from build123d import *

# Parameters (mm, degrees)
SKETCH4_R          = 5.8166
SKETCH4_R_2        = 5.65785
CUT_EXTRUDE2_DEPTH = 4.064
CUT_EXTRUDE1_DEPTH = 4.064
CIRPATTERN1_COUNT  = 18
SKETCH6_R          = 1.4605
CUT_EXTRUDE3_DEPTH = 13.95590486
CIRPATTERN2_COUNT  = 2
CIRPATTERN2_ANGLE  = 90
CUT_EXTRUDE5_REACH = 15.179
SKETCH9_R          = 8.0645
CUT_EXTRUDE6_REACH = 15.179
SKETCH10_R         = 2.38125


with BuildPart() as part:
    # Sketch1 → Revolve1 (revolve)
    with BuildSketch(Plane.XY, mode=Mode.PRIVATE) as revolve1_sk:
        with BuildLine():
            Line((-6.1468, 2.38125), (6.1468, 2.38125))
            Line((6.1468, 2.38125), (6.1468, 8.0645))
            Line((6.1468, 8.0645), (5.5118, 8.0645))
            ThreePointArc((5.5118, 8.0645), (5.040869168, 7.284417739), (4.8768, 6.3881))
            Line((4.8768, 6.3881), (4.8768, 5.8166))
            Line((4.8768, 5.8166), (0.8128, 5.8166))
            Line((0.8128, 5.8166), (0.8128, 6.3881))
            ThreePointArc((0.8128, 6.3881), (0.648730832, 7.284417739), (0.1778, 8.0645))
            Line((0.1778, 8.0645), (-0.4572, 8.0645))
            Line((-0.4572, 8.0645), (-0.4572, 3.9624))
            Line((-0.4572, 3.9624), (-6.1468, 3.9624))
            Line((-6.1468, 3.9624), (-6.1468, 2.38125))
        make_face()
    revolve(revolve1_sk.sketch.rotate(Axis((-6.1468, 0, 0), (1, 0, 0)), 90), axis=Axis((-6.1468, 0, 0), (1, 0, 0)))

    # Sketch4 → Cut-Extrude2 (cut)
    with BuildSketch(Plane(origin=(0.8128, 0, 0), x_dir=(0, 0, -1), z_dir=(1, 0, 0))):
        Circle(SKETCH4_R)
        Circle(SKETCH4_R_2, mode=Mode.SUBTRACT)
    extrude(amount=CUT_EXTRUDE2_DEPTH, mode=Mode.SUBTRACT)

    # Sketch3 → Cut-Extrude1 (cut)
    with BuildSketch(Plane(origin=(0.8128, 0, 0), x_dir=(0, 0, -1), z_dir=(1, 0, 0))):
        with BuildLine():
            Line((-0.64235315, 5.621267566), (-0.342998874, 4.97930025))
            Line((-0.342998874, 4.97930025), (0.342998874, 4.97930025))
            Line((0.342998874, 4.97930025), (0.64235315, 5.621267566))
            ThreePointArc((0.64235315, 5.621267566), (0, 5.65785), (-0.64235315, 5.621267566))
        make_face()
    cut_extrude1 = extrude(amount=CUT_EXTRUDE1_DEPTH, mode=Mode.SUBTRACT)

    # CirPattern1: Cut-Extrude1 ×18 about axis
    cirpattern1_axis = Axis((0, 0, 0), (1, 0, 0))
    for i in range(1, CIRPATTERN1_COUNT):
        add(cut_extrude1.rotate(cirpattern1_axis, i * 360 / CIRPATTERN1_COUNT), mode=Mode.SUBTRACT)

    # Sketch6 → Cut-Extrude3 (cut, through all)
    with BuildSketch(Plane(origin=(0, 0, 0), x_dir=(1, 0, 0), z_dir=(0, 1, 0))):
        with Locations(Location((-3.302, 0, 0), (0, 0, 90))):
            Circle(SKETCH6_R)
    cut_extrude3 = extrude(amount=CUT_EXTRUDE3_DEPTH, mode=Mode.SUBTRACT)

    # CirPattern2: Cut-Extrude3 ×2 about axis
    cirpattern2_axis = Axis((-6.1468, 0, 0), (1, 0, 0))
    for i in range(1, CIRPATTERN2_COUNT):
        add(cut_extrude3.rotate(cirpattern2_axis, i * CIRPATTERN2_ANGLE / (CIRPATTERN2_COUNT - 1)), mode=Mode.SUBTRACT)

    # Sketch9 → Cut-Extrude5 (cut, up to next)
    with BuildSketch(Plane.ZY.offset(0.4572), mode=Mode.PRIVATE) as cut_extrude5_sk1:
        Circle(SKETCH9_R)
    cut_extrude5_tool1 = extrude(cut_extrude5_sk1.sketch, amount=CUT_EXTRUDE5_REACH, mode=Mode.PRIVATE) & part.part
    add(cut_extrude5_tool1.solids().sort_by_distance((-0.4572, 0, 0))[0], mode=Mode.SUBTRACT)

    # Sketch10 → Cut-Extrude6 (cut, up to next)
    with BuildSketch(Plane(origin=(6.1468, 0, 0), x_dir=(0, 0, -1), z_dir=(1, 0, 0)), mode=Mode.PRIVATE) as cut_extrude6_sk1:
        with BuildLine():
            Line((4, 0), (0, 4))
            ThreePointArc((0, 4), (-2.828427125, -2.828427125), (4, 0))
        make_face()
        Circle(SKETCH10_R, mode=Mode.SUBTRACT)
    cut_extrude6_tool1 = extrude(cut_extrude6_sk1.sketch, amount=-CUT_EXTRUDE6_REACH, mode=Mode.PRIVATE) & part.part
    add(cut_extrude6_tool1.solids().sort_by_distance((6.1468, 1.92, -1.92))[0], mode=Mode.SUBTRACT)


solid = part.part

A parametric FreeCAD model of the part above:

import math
import FreeCAD as App
import Part
import Sketcher
Q = App.Units.Quantity

doc = App.newDocument("Part")
params = doc.addObject("Spreadsheet::Sheet", "Params")
for row, (alias, value) in enumerate([
    ("sketch1_width", "0.16 in"),
    ("sketch1_width2", "0.484 in"),
    ("sketch1_width3", "0.025 in"),
    ("sketch1_width4", "0.224 in"),
    ("revolution_angle", "360 deg"),
    ("sketch2_diameter", "0.458 in"),
    ("pocket1_length", "0.16 in"),
    ("pocket2_length", "0.16 in"),
    ("sketch4_diameter", "0.115 in"),
    ("sketch5_diameter", "0.635 in"),
    ("pocket4_length", "0.224 in"),
    ("sketch6_diameter", "0.1875 in"),
    ("pocket5_length", "0.26 in"),
], start=1):
    params.set(f"A{row}", alias)
    params.set(f"B{row}", "=" + value)
    params.setAlias(f"B{row}", alias)

body = doc.addObject("PartDesign::Body", "Body")

# Sketch on XY plane
sketch1 = doc.addObject("Sketcher::SketchObject", "Sketch")
body.addObject(sketch1)
sketch1.AttachmentSupport = (doc.XY_Plane, [""])
sketch1.MapMode = "FlatFace"
sketch1.addGeometry([
    Part.LineSegment(App.Vector(-6.1468, 2.38125, 0), App.Vector(6.1468, 2.38125, 0)),  # 0
    Part.LineSegment(App.Vector(6.1468, 2.38125, 0), App.Vector(6.1468, 8.0645, 0)),  # 1
    Part.LineSegment(App.Vector(6.1468, 8.0645, 0), App.Vector(5.5118, 8.0645, 0)),  # 2
    Part.ArcOfCircle(Part.Circle(App.Vector(7.407148, 6.3881, 0), App.Vector(0, 0, 1), 2.530348), math.radians(138.507839), math.radians(180)),  # 3
    Part.LineSegment(App.Vector(4.8768, 6.3881, 0), App.Vector(4.8768, 5.8166, 0)),  # 4
    Part.LineSegment(App.Vector(4.8768, 5.8166, 0), App.Vector(0.8128, 5.8166, 0)),  # 5
    Part.LineSegment(App.Vector(0.8128, 5.8166, 0), App.Vector(0.8128, 6.3881, 0)),  # 6
    Part.ArcOfCircle(Part.Circle(App.Vector(-1.717548, 6.3881, 0), App.Vector(0, 0, 1), 2.530348), math.radians(0), math.radians(41.492161)),  # 7
    Part.LineSegment(App.Vector(0.1778, 8.0645, 0), App.Vector(-0.4572, 8.0645, 0)),  # 8
    Part.LineSegment(App.Vector(-0.4572, 8.0645, 0), App.Vector(-0.4572, 3.9624, 0)),  # 9
    Part.LineSegment(App.Vector(-0.4572, 3.9624, 0), App.Vector(-6.1468, 3.9624, 0)),  # 10
    Part.LineSegment(App.Vector(-6.1468, 3.9624, 0), App.Vector(-6.1468, 2.38125, 0)),  # 11
], False)
sketch1.addConstraint([
    Sketcher.Constraint("Coincident", 0, 2, 1, 1),
    Sketcher.Constraint("Coincident", 1, 2, 2, 1),
    Sketcher.Constraint("Coincident", 2, 2, 3, 1),
    Sketcher.Constraint("Tangent", 3, 2, 4, 1),
    Sketcher.Constraint("Coincident", 4, 2, 5, 1),
    Sketcher.Constraint("Coincident", 5, 2, 6, 1),
    Sketcher.Constraint("Tangent", 6, 2, 7, 1),
    Sketcher.Constraint("Coincident", 7, 2, 8, 1),
    Sketcher.Constraint("Coincident", 8, 2, 9, 1),
    Sketcher.Constraint("Coincident", 9, 2, 10, 1),
    Sketcher.Constraint("Coincident", 10, 2, 11, 1),
    Sketcher.Constraint("Coincident", 11, 2, 0, 1),
    Sketcher.Constraint("Horizontal", 0),
    Sketcher.Constraint("Vertical", 1),
    Sketcher.Constraint("Horizontal", 2),
    Sketcher.Constraint("Vertical", 4),
    Sketcher.Constraint("Horizontal", 5),
    Sketcher.Constraint("Vertical", 6),
    Sketcher.Constraint("Horizontal", 8),
    Sketcher.Constraint("Vertical", 9),
    Sketcher.Constraint("Horizontal", 10),
    Sketcher.Constraint("Vertical", 11),
    Sketcher.Constraint("Equal", 3, 7),
    Sketcher.Constraint("Horizontal", 3, 3, 7, 3),
    Sketcher.Constraint("Horizontal", 2, 2, 7, 2),
    Sketcher.Constraint("Equal", 2, 8),
    Sketcher.Constraint("DistanceX", 5, 2, 5, 1, Q("0.16 in")),
    Sketcher.Constraint("DistanceX", 0, 1, 0, 2, Q("0.484 in")),
    Sketcher.Constraint("DistanceX", 2, 2, 2, 1, Q("0.025 in")),
    Sketcher.Constraint("DistanceX", 10, 2, 10, 1, Q("0.224 in")),
    Sketcher.Constraint("DistanceY", 4, 2, 4, 1, Q("0.0225 in")),
    Sketcher.Constraint("DistanceY", 9, 2, 9, 1, Q("0.1615 in")),
    Sketcher.Constraint("DistanceX", -1, 1, 0, 2, Q("0.242 in")),
    Sketcher.Constraint("DistanceY", -1, 1, 0, 2, Q("0.09375 in")),
    Sketcher.Constraint("DistanceY", -1, 1, 4, 2, Q("0.229 in")),
    Sketcher.Constraint("DistanceY", -1, 1, 9, 2, Q("0.156 in")),
])
sketch1.setExpression("Constraints[26]", "Params.sketch1_width")
sketch1.setExpression("Constraints[27]", "Params.sketch1_width2")
sketch1.setExpression("Constraints[28]", "Params.sketch1_width3")
sketch1.setExpression("Constraints[29]", "Params.sketch1_width4")
revolution = doc.addObject("PartDesign::Revolution", "Revolution")
body.addObject(revolution)
revolution.Profile = sketch1
revolution.ReferenceAxis = (sketch1, ["H_Axis"])
revolution.setExpression("Angle", "Params.revolution_angle")

# Sketch on YZ plane
sketch2 = doc.addObject("Sketcher::SketchObject", "Sketch001")
body.addObject(sketch2)
sketch2.AttachmentSupport = (doc.YZ_Plane, [""])
sketch2.MapMode = "FlatFace"
sketch2.AttachmentOffset = App.Placement(App.Vector(0, 0, 0.032 * 25.4), App.Rotation())
sketch2.addGeometry([
    Part.Circle(App.Vector(0, 0, 0), App.Vector(0, 0, 1), 5.8166),
    Part.Circle(App.Vector(0, 0, 0), App.Vector(0, 0, 1), 5.65785),
], False)
sketch2.addConstraint([
    Sketcher.Constraint("Coincident", 0, 3, -1, 1),
    Sketcher.Constraint("Coincident", 1, 3, -1, 1),
    Sketcher.Constraint("Diameter", 0, Q("0.458 in")),
    Sketcher.Constraint("Diameter", 1, Q("0.4455 in")),
])
sketch2.setExpression("Constraints[2]", "Params.sketch2_diameter")
pocket1 = doc.addObject("PartDesign::Pocket", "Pocket")
body.addObject(pocket1)
pocket1.Profile = sketch2
pocket1.setExpression("Length", "Params.pocket1_length")
pocket1.Reversed = True

# Sketch on YZ plane
sketch3 = doc.addObject("Sketcher::SketchObject", "Sketch002")
body.addObject(sketch3)
sketch3.AttachmentSupport = (doc.YZ_Plane, [""])
sketch3.MapMode = "FlatFace"
sketch3.AttachmentOffset = App.Placement(App.Vector(0, 0, 0.032 * 25.4), App.Rotation())
sketch3.addGeometry([
    Part.LineSegment(App.Vector(5.621268, 0.642353, 0), App.Vector(4.9793, 0.342999, 0)),
    Part.LineSegment(App.Vector(4.9793, 0.342999, 0), App.Vector(4.9793, -0.342999, 0)),
    Part.LineSegment(App.Vector(4.9793, -0.342999, 0), App.Vector(5.621268, -0.642353, 0)),
    Part.ArcOfCircle(Part.Circle(App.Vector(0, 0, 0), App.Vector(0, 0, 1), 5.65785), math.radians(-6.519023), math.radians(6.519023)),
], False)
sketch3.addConstraint([
    Sketcher.Constraint("Coincident", 0, 2, 1, 1),
    Sketcher.Constraint("Coincident", 1, 2, 2, 1),
    Sketcher.Constraint("Coincident", 2, 2, 3, 1),
    Sketcher.Constraint("Coincident", 3, 2, 0, 1),
    Sketcher.Constraint("Vertical", 1),
    Sketcher.Constraint("Coincident", 3, 3, -1, 1),
    Sketcher.Constraint("Vertical", 2, 2, 3, 2),
    Sketcher.Constraint("Equal", 0, 2),
    Sketcher.Constraint("Angle", 0, Q("-155 deg")),
    Sketcher.Constraint("Radius", 3, Q("5.65785 mm")),
    Sketcher.Constraint("DistanceX", -1, 1, 0, 2, Q("4.9793 mm")),
    Sketcher.Constraint("DistanceY", -1, 1, 0, 2, Q("0.342999 mm")),
])
pocket2 = doc.addObject("PartDesign::Pocket", "Pocket001")
body.addObject(pocket2)
pocket2.Profile = sketch3
pocket2.setExpression("Length", "Params.pocket2_length")
pocket2.Reversed = True
doc.recompute()

polarpattern = doc.addObject("PartDesign::PolarPattern", "PolarPattern")
body.addObject(polarpattern)
polarpattern.Originals = [pocket2]
polarpattern.Axis = (doc.X_Axis, [""])
polarpattern.Angle = 360
polarpattern.Occurrences = 18
body.Tip = polarpattern

# Sketch on XZ plane
sketch4 = doc.addObject("Sketcher::SketchObject", "Sketch003")
body.addObject(sketch4)
sketch4.AttachmentSupport = (doc.XZ_Plane, [""])
sketch4.MapMode = "FlatFace"
sketch4.addGeometry(Part.Circle(App.Vector(-3.302, 0, 0), App.Vector(0, 0, 1), 1.4605), False)
sketch4.addConstraint([
    Sketcher.Constraint("PointOnObject", 0, 3, -1),
    Sketcher.Constraint("Diameter", 0, Q("0.115 in")),
    Sketcher.Constraint("DistanceX", 0, 3, -1, 1, Q("0.13 in")),
])
sketch4.setExpression("Constraints[1]", "Params.sketch4_diameter")
pocket3 = doc.addObject("PartDesign::Pocket", "Pocket002")
body.addObject(pocket3)
pocket3.Profile = sketch4
pocket3.Type = "ThroughAll"
doc.recompute()

polarpattern2 = doc.addObject("PartDesign::PolarPattern", "PolarPattern001")
body.addObject(polarpattern2)
polarpattern2.Originals = [pocket3]
polarpattern2.Axis = (doc.X_Axis, [""])
polarpattern2.Angle = 90
polarpattern2.Occurrences = 2
body.Tip = polarpattern2

# Sketch on YZ plane
sketch5 = doc.addObject("Sketcher::SketchObject", "Sketch004")
body.addObject(sketch5)
sketch5.AttachmentSupport = (doc.YZ_Plane, [""])
sketch5.MapMode = "FlatFace"
sketch5.AttachmentOffset = App.Placement(App.Vector(0, 0, -0.018 * 25.4), App.Rotation())
sketch5.addGeometry(Part.Circle(App.Vector(0, 0, 0), App.Vector(0, 0, 1), 8.0645), False)
sketch5.addConstraint([
    Sketcher.Constraint("Coincident", 0, 3, -1, 1),
    Sketcher.Constraint("Diameter", 0, Q("0.635 in")),
])
sketch5.setExpression("Constraints[1]", "Params.sketch5_diameter")
pocket4 = doc.addObject("PartDesign::Pocket", "Pocket003")
body.addObject(pocket4)
pocket4.Profile = sketch5
pocket4.setExpression("Length", "Params.pocket4_length")

# Sketch on YZ plane
sketch6 = doc.addObject("Sketcher::SketchObject", "Sketch005")
body.addObject(sketch6)
sketch6.AttachmentSupport = (doc.YZ_Plane, [""])
sketch6.MapMode = "FlatFace"
sketch6.AttachmentOffset = App.Placement(App.Vector(0, 0, 0.242 * 25.4), App.Rotation())
sketch6.addGeometry([
    Part.LineSegment(App.Vector(0, -4, 0), App.Vector(4, 0, 0)),
    Part.ArcOfCircle(Part.Circle(App.Vector(0, 0, 0), App.Vector(0, 0, 1), 4), math.radians(0), math.radians(270)),
    Part.Circle(App.Vector(0, 0, 0), App.Vector(0, 0, 1), 2.38125),
], False)
sketch6.addConstraint([
    Sketcher.Constraint("Coincident", 0, 1, 1, 2),
    Sketcher.Constraint("Coincident", 1, 1, 0, 2),
    Sketcher.Constraint("Coincident", 1, 3, -1, 1),
    Sketcher.Constraint("Coincident", 2, 3, -1, 1),
    Sketcher.Constraint("PointOnObject", 0, 1, -2),
    Sketcher.Constraint("PointOnObject", 1, 1, -1),
    Sketcher.Constraint("Diameter", 2, Q("0.1875 in")),
    Sketcher.Constraint("Radius", 1, Q("4 mm")),
])
sketch6.setExpression("Constraints[6]", "Params.sketch6_diameter")
pocket5 = doc.addObject("PartDesign::Pocket", "Pocket004")
body.addObject(pocket5)
pocket5.Profile = sketch6
pocket5.setExpression("Length", "Params.pocket5_length")

doc.recompute()
